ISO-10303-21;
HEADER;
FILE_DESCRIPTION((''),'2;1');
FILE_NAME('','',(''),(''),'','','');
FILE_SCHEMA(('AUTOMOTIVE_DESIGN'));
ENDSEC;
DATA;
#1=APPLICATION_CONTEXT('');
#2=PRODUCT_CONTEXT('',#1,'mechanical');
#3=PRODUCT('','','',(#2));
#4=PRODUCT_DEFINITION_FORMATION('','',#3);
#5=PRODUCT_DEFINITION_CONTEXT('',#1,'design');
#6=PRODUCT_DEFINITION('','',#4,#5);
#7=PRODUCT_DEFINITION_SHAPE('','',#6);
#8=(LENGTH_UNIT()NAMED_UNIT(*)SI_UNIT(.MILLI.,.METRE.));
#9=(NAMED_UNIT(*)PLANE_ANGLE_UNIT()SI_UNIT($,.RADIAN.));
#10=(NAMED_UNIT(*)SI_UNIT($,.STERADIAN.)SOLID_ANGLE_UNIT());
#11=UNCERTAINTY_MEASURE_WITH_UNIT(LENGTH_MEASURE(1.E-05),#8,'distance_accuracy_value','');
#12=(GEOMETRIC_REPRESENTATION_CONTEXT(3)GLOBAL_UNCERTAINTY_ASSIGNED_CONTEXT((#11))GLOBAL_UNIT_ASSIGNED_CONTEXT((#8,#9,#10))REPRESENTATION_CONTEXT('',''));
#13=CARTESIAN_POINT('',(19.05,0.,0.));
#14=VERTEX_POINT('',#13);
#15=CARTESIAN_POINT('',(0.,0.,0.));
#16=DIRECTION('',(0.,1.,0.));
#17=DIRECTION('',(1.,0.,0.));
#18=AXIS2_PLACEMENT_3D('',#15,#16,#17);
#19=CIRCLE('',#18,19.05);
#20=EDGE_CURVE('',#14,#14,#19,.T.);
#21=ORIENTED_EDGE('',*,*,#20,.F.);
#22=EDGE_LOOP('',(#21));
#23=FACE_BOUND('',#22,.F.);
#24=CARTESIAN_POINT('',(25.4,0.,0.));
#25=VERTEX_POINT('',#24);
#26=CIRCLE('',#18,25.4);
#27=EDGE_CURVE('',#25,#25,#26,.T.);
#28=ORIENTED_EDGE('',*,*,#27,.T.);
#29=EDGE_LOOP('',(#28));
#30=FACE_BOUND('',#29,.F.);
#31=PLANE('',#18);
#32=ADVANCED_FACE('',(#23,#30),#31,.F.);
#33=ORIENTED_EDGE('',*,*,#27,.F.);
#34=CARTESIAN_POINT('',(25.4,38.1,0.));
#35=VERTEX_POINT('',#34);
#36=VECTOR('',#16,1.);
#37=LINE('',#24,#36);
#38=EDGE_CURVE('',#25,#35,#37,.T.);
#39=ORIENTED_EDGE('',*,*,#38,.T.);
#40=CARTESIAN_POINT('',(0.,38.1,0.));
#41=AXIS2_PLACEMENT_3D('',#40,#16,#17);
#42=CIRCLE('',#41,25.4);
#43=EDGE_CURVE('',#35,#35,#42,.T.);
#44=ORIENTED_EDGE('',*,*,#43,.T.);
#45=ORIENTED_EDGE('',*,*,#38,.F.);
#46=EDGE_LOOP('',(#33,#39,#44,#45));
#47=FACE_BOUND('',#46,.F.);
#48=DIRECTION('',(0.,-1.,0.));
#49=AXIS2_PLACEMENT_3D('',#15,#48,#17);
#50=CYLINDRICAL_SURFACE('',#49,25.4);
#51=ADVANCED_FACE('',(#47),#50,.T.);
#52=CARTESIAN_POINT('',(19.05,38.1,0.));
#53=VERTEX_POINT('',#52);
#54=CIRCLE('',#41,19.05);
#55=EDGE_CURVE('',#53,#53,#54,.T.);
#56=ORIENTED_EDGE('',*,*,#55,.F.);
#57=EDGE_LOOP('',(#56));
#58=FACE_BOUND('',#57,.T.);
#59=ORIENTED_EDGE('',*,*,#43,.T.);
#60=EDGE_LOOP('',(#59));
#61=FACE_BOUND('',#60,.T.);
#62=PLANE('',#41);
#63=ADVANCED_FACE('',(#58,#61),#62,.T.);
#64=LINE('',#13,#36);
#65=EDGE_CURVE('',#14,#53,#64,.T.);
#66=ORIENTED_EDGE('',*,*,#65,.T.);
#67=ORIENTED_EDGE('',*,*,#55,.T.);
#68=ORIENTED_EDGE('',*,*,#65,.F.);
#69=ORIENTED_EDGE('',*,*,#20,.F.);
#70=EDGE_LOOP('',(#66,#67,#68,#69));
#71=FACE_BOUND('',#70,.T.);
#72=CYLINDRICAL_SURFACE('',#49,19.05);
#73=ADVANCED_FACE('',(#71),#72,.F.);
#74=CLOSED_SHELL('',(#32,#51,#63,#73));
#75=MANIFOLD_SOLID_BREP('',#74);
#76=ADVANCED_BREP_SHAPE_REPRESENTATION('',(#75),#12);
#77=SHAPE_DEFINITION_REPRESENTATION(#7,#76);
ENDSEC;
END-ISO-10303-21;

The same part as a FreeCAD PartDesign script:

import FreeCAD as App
import Part
import Sketcher
Q = App.Units.Quantity

doc = App.newDocument("Part")
body = doc.addObject("PartDesign::Body", "Body")

# Sketch on XZ plane
sketch1 = doc.addObject("Sketcher::SketchObject", "Sketch")
body.addObject(sketch1)
sketch1.AttachmentSupport = (doc.XZ_Plane, [""])
sketch1.MapMode = "FlatFace"
sketch1.addGeometry([
    Part.Circle(App.Vector(0, 0, 0), App.Vector(0, 0, 1), 25),
    Part.Circle(App.Vector(0, 0, 0), App.Vector(0, 0, 1), 19),
], False)
sketch1.addConstraint([
    Sketcher.Constraint("Coincident", 0, 3, -1, 1),
    Sketcher.Constraint("Coincident", 1, 3, -1, 1),
    Sketcher.Constraint("Diameter", 0, Q("2 in")),
    Sketcher.Constraint("Diameter", 1, Q("1.5 in")),
])
pad1 = doc.addObject("PartDesign::Pad", "Pad")
body.addObject(pad1)
pad1.Profile = sketch1
pad1.Length = Q("1.5 in")
pad1.Reversed = True

doc.recompute()
